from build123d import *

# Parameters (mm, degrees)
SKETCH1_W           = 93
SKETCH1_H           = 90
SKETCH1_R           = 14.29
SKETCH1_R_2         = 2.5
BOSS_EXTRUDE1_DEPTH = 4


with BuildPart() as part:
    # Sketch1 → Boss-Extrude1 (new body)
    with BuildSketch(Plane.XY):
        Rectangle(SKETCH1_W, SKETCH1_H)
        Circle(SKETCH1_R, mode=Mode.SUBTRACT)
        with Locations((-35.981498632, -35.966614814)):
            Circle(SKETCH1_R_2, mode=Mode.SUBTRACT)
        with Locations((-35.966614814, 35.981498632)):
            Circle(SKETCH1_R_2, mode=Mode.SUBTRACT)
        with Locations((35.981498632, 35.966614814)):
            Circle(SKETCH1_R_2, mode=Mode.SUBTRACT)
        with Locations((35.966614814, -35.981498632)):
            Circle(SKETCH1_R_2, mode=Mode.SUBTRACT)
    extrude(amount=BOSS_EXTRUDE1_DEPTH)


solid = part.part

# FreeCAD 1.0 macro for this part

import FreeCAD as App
import Part
import Sketcher
Q = App.Units.Quantity


def add_polygon(sketch, points):
    """Adds a closed chain of lines whose ends are joined by coincident constraints."""
    first, n = sketch.GeometryCount, len(points)
    for a, b in zip(points, points[1:] + points[:1]):
        sketch.addGeometry(Part.LineSegment(App.Vector(*a, 0), App.Vector(*b, 0)), False)
    for i in range(n):
        sketch.addConstraint(Sketcher.Constraint("Coincident", first + i, 2, first + (i + 1) % n, 1))

doc = App.newDocument("Part")
body = doc.addObject("PartDesign::Body", "Body")

sketch1 = body.newObject("Sketcher::SketchObject", "Sketch")
sketch1.AttachmentSupport = (doc.getObject("XY_Plane"), [""])
sketch1.MapMode = "FlatFace"
add_polygon(sketch1, [(-46.5, 45), (-46.5, -45), (46.5, -45), (46.5, 45)])
sketch1.addGeometry(Part.Circle(App.Vector(-36, -36, 0), App.Vector(0, 0, 1), 2.5), False)
sketch1.addGeometry(Part.Circle(App.Vector(36, -36, 0), App.Vector(0, 0, 1), 2.5), False)
sketch1.addGeometry(Part.Circle(App.Vector(-36, 36, 0), App.Vector(0, 0, 1), 2.5), False)
sketch1.addGeometry(Part.Circle(App.Vector(0, 0, 0), App.Vector(0, 0, 1), 14.3), False)
sketch1.addGeometry(Part.Circle(App.Vector(36, 36, 0), App.Vector(0, 0, 1), 2.5), False)
sketch1.addConstraint([
    Sketcher.Constraint("Vertical", 0),
    Sketcher.Constraint("Horizontal", 1),
    Sketcher.Constraint("Vertical", 2),
    Sketcher.Constraint("Horizontal", 3),
    Sketcher.Constraint("Coincident", 7, 3, -1, 1),
    Sketcher.Constraint("Equal", 4, 5),
    Sketcher.Constraint("Equal", 5, 6),
    Sketcher.Constraint("Equal", 6, 8),
    Sketcher.Constraint("Symmetric", 5, 3, 6, 3, -1, 1),
    Sketcher.Constraint("Symmetric", 4, 3, 8, 3, -1, 1),
    Sketcher.Constraint("Symmetric", 0, 2, 2, 2, -1, 1),
    Sketcher.Constraint("Diameter", 4, Q("5 mm")),
    Sketcher.Constraint("Diameter", 7, Q("28.58 mm")),
    Sketcher.Constraint("DistanceX", 1, 1, 1, 2, Q("93 mm")),
    Sketcher.Constraint("DistanceY", 0, 2, 0, 1, Q("90 mm")),
    Sketcher.Constraint("DistanceX", 4, 3, -1, 1, Q("35.981499 mm")),
    Sketcher.Constraint("DistanceY", 5, 3, -1, 1, Q("35.981499 mm")),
    Sketcher.Constraint("DistanceX", 6, 3, 5, 3, Q("71.93323 mm")),
    Sketcher.Constraint("DistanceY", 4, 3, 8, 3, Q("71.93323 mm")),
])
pad1 = body.newObject("PartDesign::Pad", "Pad")
pad1.Profile = sketch1
pad1.Length = 4

doc.recompute()
